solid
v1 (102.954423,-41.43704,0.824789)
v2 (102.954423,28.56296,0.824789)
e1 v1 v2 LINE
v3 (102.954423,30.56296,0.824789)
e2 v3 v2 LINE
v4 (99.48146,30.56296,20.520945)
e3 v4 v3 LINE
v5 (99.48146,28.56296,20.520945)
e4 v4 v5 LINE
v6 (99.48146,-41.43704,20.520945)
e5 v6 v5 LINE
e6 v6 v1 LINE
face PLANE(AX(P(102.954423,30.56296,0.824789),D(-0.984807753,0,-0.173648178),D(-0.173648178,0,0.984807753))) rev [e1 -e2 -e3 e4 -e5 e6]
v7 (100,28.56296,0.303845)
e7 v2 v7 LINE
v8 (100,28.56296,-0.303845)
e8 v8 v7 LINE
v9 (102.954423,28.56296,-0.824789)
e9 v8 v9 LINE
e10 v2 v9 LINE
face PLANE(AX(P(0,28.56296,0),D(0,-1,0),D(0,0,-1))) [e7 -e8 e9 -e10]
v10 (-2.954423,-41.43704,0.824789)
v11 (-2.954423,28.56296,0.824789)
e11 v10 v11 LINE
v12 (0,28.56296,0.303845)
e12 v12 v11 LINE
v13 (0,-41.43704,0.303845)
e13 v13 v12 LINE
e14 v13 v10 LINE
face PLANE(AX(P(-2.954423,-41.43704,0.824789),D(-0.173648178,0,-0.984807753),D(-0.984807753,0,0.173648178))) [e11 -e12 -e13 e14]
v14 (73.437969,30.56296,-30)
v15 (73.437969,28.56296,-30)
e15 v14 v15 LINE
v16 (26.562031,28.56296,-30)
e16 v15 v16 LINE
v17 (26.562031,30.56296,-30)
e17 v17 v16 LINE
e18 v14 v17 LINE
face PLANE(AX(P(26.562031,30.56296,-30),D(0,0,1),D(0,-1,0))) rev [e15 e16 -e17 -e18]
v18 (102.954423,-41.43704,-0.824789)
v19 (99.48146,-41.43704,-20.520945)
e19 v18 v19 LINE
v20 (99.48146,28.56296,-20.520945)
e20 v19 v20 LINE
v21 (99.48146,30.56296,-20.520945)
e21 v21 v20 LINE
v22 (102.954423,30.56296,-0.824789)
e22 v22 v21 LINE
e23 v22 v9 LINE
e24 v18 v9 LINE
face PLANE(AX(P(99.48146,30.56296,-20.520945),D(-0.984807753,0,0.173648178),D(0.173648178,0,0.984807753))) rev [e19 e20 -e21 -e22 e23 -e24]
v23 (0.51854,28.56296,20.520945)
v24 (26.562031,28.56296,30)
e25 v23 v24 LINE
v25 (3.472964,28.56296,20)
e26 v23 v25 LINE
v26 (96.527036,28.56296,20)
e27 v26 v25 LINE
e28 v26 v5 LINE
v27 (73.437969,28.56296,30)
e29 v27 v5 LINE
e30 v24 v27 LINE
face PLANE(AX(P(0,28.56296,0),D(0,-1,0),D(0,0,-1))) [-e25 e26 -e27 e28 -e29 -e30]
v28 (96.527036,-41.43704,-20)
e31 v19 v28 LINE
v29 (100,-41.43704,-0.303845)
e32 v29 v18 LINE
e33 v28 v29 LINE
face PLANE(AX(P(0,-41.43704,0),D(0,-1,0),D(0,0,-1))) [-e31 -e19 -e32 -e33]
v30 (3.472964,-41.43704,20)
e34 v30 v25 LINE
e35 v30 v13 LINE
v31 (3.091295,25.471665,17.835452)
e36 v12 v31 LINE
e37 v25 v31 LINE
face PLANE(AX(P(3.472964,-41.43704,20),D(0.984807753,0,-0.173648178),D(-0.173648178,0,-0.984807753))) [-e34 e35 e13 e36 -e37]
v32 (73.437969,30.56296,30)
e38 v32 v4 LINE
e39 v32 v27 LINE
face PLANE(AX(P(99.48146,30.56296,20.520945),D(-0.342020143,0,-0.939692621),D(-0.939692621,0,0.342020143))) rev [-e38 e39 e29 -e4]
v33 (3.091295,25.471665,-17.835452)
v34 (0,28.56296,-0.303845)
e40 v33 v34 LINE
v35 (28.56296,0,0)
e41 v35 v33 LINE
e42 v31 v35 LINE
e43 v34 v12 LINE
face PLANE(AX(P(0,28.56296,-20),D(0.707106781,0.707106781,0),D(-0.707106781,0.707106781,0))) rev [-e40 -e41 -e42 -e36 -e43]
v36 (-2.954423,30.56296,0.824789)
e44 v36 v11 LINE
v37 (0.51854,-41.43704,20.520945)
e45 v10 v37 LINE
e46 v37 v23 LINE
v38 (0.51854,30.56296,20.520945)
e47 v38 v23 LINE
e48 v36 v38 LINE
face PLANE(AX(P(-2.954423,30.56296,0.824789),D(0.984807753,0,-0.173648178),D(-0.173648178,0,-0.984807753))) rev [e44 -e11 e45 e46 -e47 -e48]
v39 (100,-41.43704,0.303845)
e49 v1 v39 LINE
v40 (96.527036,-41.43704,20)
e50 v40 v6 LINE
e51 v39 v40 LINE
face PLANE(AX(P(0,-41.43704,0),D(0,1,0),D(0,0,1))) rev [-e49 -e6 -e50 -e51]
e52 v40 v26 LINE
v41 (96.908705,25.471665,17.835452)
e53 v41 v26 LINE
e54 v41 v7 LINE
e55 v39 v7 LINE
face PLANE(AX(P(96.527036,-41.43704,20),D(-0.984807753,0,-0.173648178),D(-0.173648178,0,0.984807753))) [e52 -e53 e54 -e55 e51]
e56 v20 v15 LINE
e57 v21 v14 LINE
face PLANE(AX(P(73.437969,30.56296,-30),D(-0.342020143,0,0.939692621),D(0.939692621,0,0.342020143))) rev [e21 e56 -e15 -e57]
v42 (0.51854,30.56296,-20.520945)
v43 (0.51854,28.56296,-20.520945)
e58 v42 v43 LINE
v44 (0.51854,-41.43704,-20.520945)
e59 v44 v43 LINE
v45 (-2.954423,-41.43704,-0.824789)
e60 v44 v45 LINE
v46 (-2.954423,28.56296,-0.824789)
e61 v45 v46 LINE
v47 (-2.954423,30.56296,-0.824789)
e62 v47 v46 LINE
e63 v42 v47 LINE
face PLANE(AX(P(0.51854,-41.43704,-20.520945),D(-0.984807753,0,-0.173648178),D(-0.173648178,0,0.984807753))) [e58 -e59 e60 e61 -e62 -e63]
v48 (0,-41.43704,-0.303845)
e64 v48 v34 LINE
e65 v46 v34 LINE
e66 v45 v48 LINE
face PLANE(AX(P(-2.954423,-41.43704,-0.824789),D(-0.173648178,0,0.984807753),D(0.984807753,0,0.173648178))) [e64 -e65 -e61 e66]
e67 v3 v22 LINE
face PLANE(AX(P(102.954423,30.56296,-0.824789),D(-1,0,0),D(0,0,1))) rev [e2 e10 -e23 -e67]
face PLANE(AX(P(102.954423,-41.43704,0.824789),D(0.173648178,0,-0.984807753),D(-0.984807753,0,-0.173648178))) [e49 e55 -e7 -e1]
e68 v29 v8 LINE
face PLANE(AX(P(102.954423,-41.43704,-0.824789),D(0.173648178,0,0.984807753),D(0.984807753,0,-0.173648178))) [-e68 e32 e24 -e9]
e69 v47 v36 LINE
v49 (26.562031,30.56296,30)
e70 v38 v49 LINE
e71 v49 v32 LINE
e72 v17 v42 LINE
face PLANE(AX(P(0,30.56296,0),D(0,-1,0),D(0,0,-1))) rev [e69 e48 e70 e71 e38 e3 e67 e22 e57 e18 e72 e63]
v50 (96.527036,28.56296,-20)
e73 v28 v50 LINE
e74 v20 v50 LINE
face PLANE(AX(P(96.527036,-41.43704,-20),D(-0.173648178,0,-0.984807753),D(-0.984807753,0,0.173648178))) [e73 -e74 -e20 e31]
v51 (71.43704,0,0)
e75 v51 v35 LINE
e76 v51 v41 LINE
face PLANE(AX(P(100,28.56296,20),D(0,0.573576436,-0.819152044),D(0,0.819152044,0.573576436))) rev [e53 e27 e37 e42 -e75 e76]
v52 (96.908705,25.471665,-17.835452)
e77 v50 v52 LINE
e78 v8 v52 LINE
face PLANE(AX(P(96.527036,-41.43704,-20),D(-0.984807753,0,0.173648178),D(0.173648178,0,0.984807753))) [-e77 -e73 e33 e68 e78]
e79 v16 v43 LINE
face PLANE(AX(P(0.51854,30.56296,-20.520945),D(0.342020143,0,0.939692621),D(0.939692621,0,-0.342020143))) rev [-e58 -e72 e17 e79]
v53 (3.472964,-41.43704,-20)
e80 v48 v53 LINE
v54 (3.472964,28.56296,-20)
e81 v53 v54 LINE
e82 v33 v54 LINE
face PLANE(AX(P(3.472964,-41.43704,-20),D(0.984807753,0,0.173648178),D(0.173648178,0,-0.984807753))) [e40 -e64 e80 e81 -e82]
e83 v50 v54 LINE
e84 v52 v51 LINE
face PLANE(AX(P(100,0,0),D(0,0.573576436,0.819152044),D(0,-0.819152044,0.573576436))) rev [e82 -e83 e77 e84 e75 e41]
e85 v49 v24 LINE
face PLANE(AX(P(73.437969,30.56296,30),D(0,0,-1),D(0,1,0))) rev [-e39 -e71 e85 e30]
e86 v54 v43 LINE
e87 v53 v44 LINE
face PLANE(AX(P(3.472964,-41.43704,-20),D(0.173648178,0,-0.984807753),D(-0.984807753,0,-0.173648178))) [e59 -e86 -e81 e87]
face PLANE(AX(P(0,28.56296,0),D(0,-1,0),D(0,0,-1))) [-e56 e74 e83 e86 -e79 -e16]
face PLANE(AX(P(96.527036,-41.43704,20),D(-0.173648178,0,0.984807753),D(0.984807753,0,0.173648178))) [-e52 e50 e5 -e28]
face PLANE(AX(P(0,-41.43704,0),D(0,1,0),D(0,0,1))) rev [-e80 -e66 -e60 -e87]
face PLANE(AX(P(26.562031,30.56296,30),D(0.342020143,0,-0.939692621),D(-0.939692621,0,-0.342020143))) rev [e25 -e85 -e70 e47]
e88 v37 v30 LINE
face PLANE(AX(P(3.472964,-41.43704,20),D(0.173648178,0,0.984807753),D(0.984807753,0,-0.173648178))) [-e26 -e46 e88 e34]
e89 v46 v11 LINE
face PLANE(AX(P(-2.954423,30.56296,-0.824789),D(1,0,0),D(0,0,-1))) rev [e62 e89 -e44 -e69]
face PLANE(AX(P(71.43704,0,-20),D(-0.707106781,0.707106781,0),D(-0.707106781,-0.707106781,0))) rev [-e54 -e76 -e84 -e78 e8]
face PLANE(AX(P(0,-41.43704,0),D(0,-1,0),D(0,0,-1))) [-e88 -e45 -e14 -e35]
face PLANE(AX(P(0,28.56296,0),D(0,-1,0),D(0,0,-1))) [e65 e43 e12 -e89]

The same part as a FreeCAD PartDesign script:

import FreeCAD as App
import Part
import Sketcher
from FreeCAD import Vector
Q = App.Units.Quantity


def add_polygon(sketch, points):
    """Adds a closed chain of lines whose ends are joined by coincident constraints."""
    first, n = sketch.GeometryCount, len(points)
    for a, b in zip(points, points[1:] + points[:1]):
        sketch.addGeometry(Part.LineSegment(App.Vector(*a, 0), App.Vector(*b, 0)), False)
    for i in range(n):
        sketch.addConstraint(Sketcher.Constraint("Coincident", first + i, 2, first + (i + 1) % n, 1))

doc = App.newDocument("Part")
body = doc.addObject("PartDesign::Body", "Body")

# Sketch on YZ plane
sketch1 = body.newObject("Sketcher::SketchObject", "Sketch")
sketch1.AttachmentSupport = (doc.getObject("YZ_Plane"), [""])
sketch1.MapMode = "FlatFace"
add_polygon(sketch1, [(0, 0), (29, -20), (29, 20)])  # lines 0-2
sketch1.addConstraint(Sketcher.Constraint("Vertical", 1))
sketch1.addConstraint(Sketcher.Constraint("Coincident", 2, 2, -1, 1))
sketch1.addConstraint(Sketcher.Constraint("Equal", 0, 2))
sketch1.addConstraint(Sketcher.Constraint("DistanceY", 1, 1, 1, 2, Q("40 mm")))
sketch1.addConstraint(Sketcher.Constraint("Angle", 0, Q("-35 deg")))
pad1 = body.newObject("PartDesign::Pad", "Pad")
pad1.Profile = sketch1
pad1.Length = 100

# Sketch on XZ plane
sketch2 = body.newObject("Sketcher::SketchObject", "Sketch001")
sketch2.AttachmentSupport = (doc.getObject("XZ_Plane"), [""])
sketch2.MapMode = "FlatFace"
sketch2.AttachmentOffset = App.Placement(Vector(0, 0, -0.433935), App.Rotation())
add_polygon(sketch2, [(96.5, -20), (100, -0.3), (100, -20)])  # lines 0-2
add_polygon(sketch2, [(0, -0.3), (3.5, -20), (0, -20)])  # lines 3-5
add_polygon(sketch2, [(100, 0.3), (96.5, 20), (100, 20)])  # lines 6-8
add_polygon(sketch2, [(3.5, 20), (0, 0.3), (0, 20)])  # lines 9-11
sketch2.addConstraint(Sketcher.Constraint("Vertical", 1))
sketch2.addConstraint(Sketcher.Constraint("Horizontal", 2))
sketch2.addConstraint(Sketcher.Constraint("Horizontal", 4))
sketch2.addConstraint(Sketcher.Constraint("Vertical", 5))
sketch2.addConstraint(Sketcher.Constraint("Horizontal", 7))
sketch2.addConstraint(Sketcher.Constraint("Vertical", 8))
sketch2.addConstraint(Sketcher.Constraint("Vertical", 10))
sketch2.addConstraint(Sketcher.Constraint("Horizontal", 11))
sketch2.addConstraint(Sketcher.Constraint("Symmetric", 5, 2, 9, 2, -1, 1))
sketch2.addConstraint(Sketcher.Constraint("Symmetric", 2, 2, 6, 2, -1))
sketch2.addConstraint(Sketcher.Constraint("Symmetric", 0, 2, 8, 2, -1))
sketch2.addConstraint(Sketcher.Constraint("Symmetric", 4, 2, 10, 2, -1))
sketch2.addConstraint(Sketcher.Constraint("Parallel", 3, 6))
sketch2.addConstraint(Sketcher.Constraint("Parallel", 0, 9))
sketch2.addConstraint(Sketcher.Constraint("Horizontal", 2, 2, 3, 2))
sketch2.addConstraint(Sketcher.Constraint("Horizontal", 0, 2, 5, 2))
sketch2.addConstraint(Sketcher.Constraint("Angle", 0, Q("80 deg")))
sketch2.addConstraint(Sketcher.Constraint("Distance", 0, Q("20 mm")))
sketch2.addConstraint(Sketcher.Constraint("DistanceX", -1, 1, 0, 2, Q("100 mm")))
sketch2.addConstraint(Sketcher.Constraint("DistanceY", 1, 2, -1, 1, Q("20 mm")))
pocket1 = body.newObject("PartDesign::Pocket", "Pocket")
pocket1.Profile = sketch2
pocket1.Length = 28.129025

# Sketch on XY plane
sketch3 = body.newObject("Sketcher::SketchObject", "Sketch002")
sketch3.AttachmentSupport = (doc.getObject("XY_Plane"), [""])
sketch3.MapMode = "FlatFace"
sketch3.AttachmentOffset = App.Placement(Vector(0, 0, -20.520945), App.Rotation())
add_polygon(sketch3, [(29, 0), (0, 29), (0, 0)])  # lines 0-2
add_polygon(sketch3, [(100, 0), (100, 29), (71, 0)])  # lines 3-5
sketch3.addConstraint(Sketcher.Constraint("Vertical", 1))
sketch3.addConstraint(Sketcher.Constraint("Horizontal", 2))
sketch3.addConstraint(Sketcher.Constraint("Vertical", 3))
sketch3.addConstraint(Sketcher.Constraint("Horizontal", 5))
sketch3.addConstraint(Sketcher.Constraint("Coincident", 1, 2, -1, 1))
sketch3.addConstraint(Sketcher.Constraint("PointOnObject", 4, 2, -1))
sketch3.addConstraint(Sketcher.Constraint("Perpendicular", 0, 4))
sketch3.addConstraint(Sketcher.Constraint("Horizontal", 0, 2, 3, 2))
sketch3.addConstraint(Sketcher.Constraint("Equal", 2, 5))
sketch3.addConstraint(Sketcher.Constraint("DistanceX", -1, 1, 3, 2, Q("100 mm")))
sketch3.addConstraint(Sketcher.Constraint("DistanceX", 2, 1, 2, 2, Q("28.56296 mm")))
pocket2 = body.newObject("PartDesign::Pocket", "Pocket001")
pocket2.Profile = sketch3
pocket2.Length = 38.356397
pocket2.Reversed = True
body2 = doc.addObject("PartDesign::Body", "Body001")

# Sketch on XZ plane
sketch4 = body2.newObject("Sketcher::SketchObject", "Sketch003")
sketch4.AttachmentSupport = (doc.getObject("XZ_Plane001"), [""])
sketch4.MapMode = "FlatFace"
sketch4.AttachmentOffset = App.Placement(Vector(0, 0, -28.56296), App.Rotation())
add_polygon(sketch4, [(3.5, -20), (0.5, -20.5), (-3, -0.8), (0, -0.3)])  # lines 0-3
sketch4.addConstraint(Sketcher.Constraint("PointOnObject", 2, 2, -2))
sketch4.addConstraint(Sketcher.Constraint("Perpendicular", 0, 1))
sketch4.addConstraint(Sketcher.Constraint("Perpendicular", 1, 2))
sketch4.addConstraint(Sketcher.Constraint("Perpendicular", 2, 3))
sketch4.addConstraint(Sketcher.Constraint("Angle", 0, Q("-170 deg")))
sketch4.addConstraint(Sketcher.Constraint("Distance", 0, Q("3 mm")))
sketch4.addConstraint(Sketcher.Constraint("Distance", 1, Q("20 mm")))
sketch4.addConstraint(Sketcher.Constraint("DistanceY", 3, 2, -1, 1, Q("20 mm")))
pad2 = body2.newObject("PartDesign::Pad", "Pad001")
pad2.Profile = sketch4
pad2.Length = 70
body3 = doc.addObject("PartDesign::Body", "Body002")

# Sketch on XZ plane
sketch5 = body3.newObject("Sketcher::SketchObject", "Sketch004")
sketch5.AttachmentSupport = (doc.getObject("XZ_Plane002"), [""])
sketch5.MapMode = "FlatFace"
sketch5.AttachmentOffset = App.Placement(Vector(0, 0, -28.56296), App.Rotation())
add_polygon(sketch5, [(96.5, -20), (100, -0.3), (103, -0.8), (99.5, -20.5)])  # lines 0-3
sketch5.addConstraint(Sketcher.Constraint("Perpendicular", 0, 1))
sketch5.addConstraint(Sketcher.Constraint("Perpendicular", 1, 2))
sketch5.addConstraint(Sketcher.Constraint("Perpendicular", 2, 3))
sketch5.addConstraint(Sketcher.Constraint("Angle", 0, Q("80 deg")))
sketch5.addConstraint(Sketcher.Constraint("Distance", 0, Q("20 mm")))
sketch5.addConstraint(Sketcher.Constraint("Distance", 1, Q("3 mm")))
sketch5.addConstraint(Sketcher.Constraint("DistanceX", -1, 1, 0, 2, Q("100 mm")))
sketch5.addConstraint(Sketcher.Constraint("DistanceY", 3, 2, -1, 1, Q("20 mm")))
pad3 = body3.newObject("PartDesign::Pad", "Pad002")
pad3.Profile = sketch5
pad3.Length = 70
body4 = doc.addObject("PartDesign::Body", "Body003")

# Sketch on XZ plane
sketch6 = body4.newObject("Sketcher::SketchObject", "Sketch005")
sketch6.AttachmentSupport = (doc.getObject("XZ_Plane003"), [""])
sketch6.MapMode = "FlatFace"
sketch6.AttachmentOffset = App.Placement(Vector(0, 0, -28.56296), App.Rotation())
add_polygon(sketch6, [(96.5, 20), (99.5, 20.5), (103, 0.8), (100, 0.3)])  # lines 0-3
sketch6.addConstraint(Sketcher.Constraint("Perpendicular", 0, 1))
sketch6.addConstraint(Sketcher.Constraint("Perpendicular", 1, 2))
sketch6.addConstraint(Sketcher.Constraint("Perpendicular", 2, 3))
sketch6.addConstraint(Sketcher.Constraint("Angle", 0, Q("10 deg")))
sketch6.addConstraint(Sketcher.Constraint("Distance", 0, Q("3 mm")))
sketch6.addConstraint(Sketcher.Constraint("Distance", 1, Q("20 mm")))
sketch6.addConstraint(Sketcher.Constraint("DistanceX", -1, 1, 2, 2, Q("100 mm")))
sketch6.addConstraint(Sketcher.Constraint("DistanceY", -1, 1, 3, 2, Q("20 mm")))
pad4 = body4.newObject("PartDesign::Pad", "Pad003")
pad4.Profile = sketch6
pad4.Length = 70
body5 = doc.addObject("PartDesign::Body", "Body004")

# Sketch on XZ plane
sketch7 = body5.newObject("Sketcher::SketchObject", "Sketch006")
sketch7.AttachmentSupport = (doc.getObject("XZ_Plane004"), [""])
sketch7.MapMode = "FlatFace"
sketch7.AttachmentOffset = App.Placement(Vector(0, 0, -28.56296), App.Rotation())
add_polygon(sketch7, [(3.5, 20), (0, 0.3), (-3, 0.8), (0.5, 20.5)])  # lines 0-3
sketch7.addConstraint(Sketcher.Constraint("PointOnObject", 0, 2, -2))
sketch7.addConstraint(Sketcher.Constraint("Perpendicular", 0, 1))
sketch7.addConstraint(Sketcher.Constraint("Perpendicular", 1, 2))
sketch7.addConstraint(Sketcher.Constraint("Perpendicular", 2, 3))
sketch7.addConstraint(Sketcher.Constraint("Angle", 0, Q("-100 deg")))
sketch7.addConstraint(Sketcher.Constraint("Distance", 0, Q("20 mm")))
sketch7.addConstraint(Sketcher.Constraint("Distance", 1, Q("3 mm")))
sketch7.addConstraint(Sketcher.Constraint("DistanceY", -1, 1, 3, 2, Q("20 mm")))
pad5 = body5.newObject("PartDesign::Pad", "Pad004")
pad5.Profile = sketch7
pad5.Length = 70
doc.recompute()

boolean = body.newObject("PartDesign::Boolean", "Boolean")
boolean.Type = "Fuse"
boolean.addObjects([body2])
doc.recompute()

boolean2 = body.newObject("PartDesign::Boolean", "Boolean001")
boolean2.Type = "Fuse"
boolean2.addObjects([body3])
doc.recompute()

boolean3 = body.newObject("PartDesign::Boolean", "Boolean002")
boolean3.Type = "Fuse"
boolean3.addObjects([body4])
doc.recompute()

boolean4 = body.newObject("PartDesign::Boolean", "Boolean003")
boolean4.Type = "Fuse"
boolean4.addObjects([body5])

# Sketch on XZ plane
sketch8 = body.newObject("Sketcher::SketchObject", "Sketch007")
sketch8.AttachmentSupport = (doc.getObject("XZ_Plane"), [""])
sketch8.MapMode = "FlatFace"
sketch8.AttachmentOffset = App.Placement(Vector(0, 0, -28.56296), App.Rotation())
add_polygon(sketch8, [(26.6, -30), (0.5, -20.5), (-3, -0.8), (-3, 0.8), (0.5, 20.5), (26.6, 30), (73.4, 30), (99.5, 20.5), (103, 0.8), (103, -0.8), (99.5, -20.5), (73.4, -30)])  # lines 0-11
sketch8.addConstraint(Sketcher.Constraint("Vertical", 2))
sketch8.addConstraint(Sketcher.Constraint("Horizontal", 5))
sketch8.addConstraint(Sketcher.Constraint("Vertical", 8))
sketch8.addConstraint(Sketcher.Constraint("Horizontal", 11))
sketch8.addConstraint(Sketcher.Constraint("Symmetric", 0, 2, 3, 2, -1))
sketch8.addConstraint(Sketcher.Constraint("Symmetric", 6, 2, 9, 2, -1))
sketch8.addConstraint(Sketcher.Constraint("Symmetric", 5, 2, 10, 2, -1))
sketch8.addConstraint(Sketcher.Constraint("Parallel", 0, 6))
sketch8.addConstraint(Sketcher.Constraint("Parallel", 1, 7))
sketch8.addConstraint(Sketcher.Constraint("Parallel", 3, 9))
sketch8.addConstraint(Sketcher.Constraint("Parallel", 4, 10))
sketch8.addConstraint(Sketcher.Constraint("Horizontal", 3, 2, 6, 2))
sketch8.addConstraint(Sketcher.Constraint("Horizontal", 2, 2, 7, 2))
sketch8.addConstraint(Sketcher.Constraint("Horizontal", 1, 2, 8, 2))
sketch8.addConstraint(Sketcher.Constraint("Angle", 0, Q("160 deg")))
sketch8.addConstraint(Sketcher.Constraint("Angle", 1, Q("100 deg")))
sketch8.addConstraint(Sketcher.Constraint("Distance", 1, Q("20 mm")))
sketch8.addConstraint(Sketcher.Constraint("DistanceY", -1, 1, 4, 2, Q("30 mm")))
sketch8.addConstraint(Sketcher.Constraint("DistanceY", 2, 1, 2, 2, Q("1.649579 mm")))
sketch8.addConstraint(Sketcher.Constraint("DistanceX", 5, 1, 5, 2, Q("46.875938 mm")))
sketch8.addConstraint(Sketcher.Constraint("DistanceX", -1, 1, 0, 2, Q("0.51854 mm")))
pad6 = body.newObject("PartDesign::Pad", "Pad005")
pad6.Profile = sketch8
pad6.Length = 2
pad6.Reversed = True

doc.recompute()
